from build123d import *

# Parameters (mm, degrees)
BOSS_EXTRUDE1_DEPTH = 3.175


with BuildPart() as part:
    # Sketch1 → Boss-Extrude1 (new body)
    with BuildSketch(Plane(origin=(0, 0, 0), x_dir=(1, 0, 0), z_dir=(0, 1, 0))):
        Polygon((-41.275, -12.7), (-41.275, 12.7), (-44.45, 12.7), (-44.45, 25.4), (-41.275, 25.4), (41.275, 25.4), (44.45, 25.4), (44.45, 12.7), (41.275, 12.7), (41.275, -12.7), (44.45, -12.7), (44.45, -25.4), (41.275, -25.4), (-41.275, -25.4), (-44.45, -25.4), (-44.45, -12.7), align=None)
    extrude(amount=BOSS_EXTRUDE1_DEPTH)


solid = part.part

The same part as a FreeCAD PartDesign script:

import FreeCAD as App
import Part
import Sketcher
Q = App.Units.Quantity


def add_polygon(sketch, points):
    """Adds a closed chain of lines whose ends are joined by coincident constraints."""
    first, n = sketch.GeometryCount, len(points)
    for a, b in zip(points, points[1:] + points[:1]):
        sketch.addGeometry(Part.LineSegment(App.Vector(*a, 0), App.Vector(*b, 0)), False)
    for i in range(n):
        sketch.addConstraint(Sketcher.Constraint("Coincident", first + i, 2, first + (i + 1) % n, 1))

doc = App.newDocument("Part")
body = doc.addObject("PartDesign::Body", "Body")

# Sketch on XZ plane
sketch1 = body.newObject("Sketcher::SketchObject", "Sketch")
sketch1.AttachmentSupport = (doc.getObject("XZ_Plane"), [""])
sketch1.MapMode = "FlatFace"
add_polygon(sketch1, [(-41.3, -12.7), (-41.3, 12.7), (-44.5, 12.7), (-44.5, 25.4), (44.5, 25.4), (44.5, 12.7), (41.3, 12.7), (41.3, -12.7), (44.5, -12.7), (44.5, -25.4), (-44.5, -25.4), (-44.5, -12.7)])  # lines 0-11
sketch1.addConstraint([
    Sketcher.Constraint("Vertical", 0),
    Sketcher.Constraint("Horizontal", 1),
    Sketcher.Constraint("Vertical", 2),
    Sketcher.Constraint("Horizontal", 3),
    Sketcher.Constraint("Vertical", 4),
    Sketcher.Constraint("Horizontal", 5),
    Sketcher.Constraint("Vertical", 6),
    Sketcher.Constraint("Horizontal", 7),
    Sketcher.Constraint("Vertical", 8),
    Sketcher.Constraint("Horizontal", 9),
    Sketcher.Constraint("Vertical", 10),
    Sketcher.Constraint("Horizontal", 11),
    Sketcher.Constraint("Symmetric", 0, 2, 6, 2, -1, 1),
    Sketcher.Constraint("Symmetric", 2, 2, 8, 2, -1, 1),
    Sketcher.Constraint("Symmetric", 4, 2, 10, 2, -1, 1),
    Sketcher.Constraint("Symmetric", 1, 2, 4, 2, -2),
    Sketcher.Constraint("DistanceY", 0, 1, 0, 2, Q("1 in")),
    Sketcher.Constraint("DistanceX", 3, 1, 3, 2, Q("3.5 in")),
    Sketcher.Constraint("DistanceY", 2, 1, 2, 2, Q("0.5 in")),
    Sketcher.Constraint("DistanceX", 1, 2, 1, 1, Q("0.125 in")),
])
pad1 = body.newObject("PartDesign::Pad", "Pad")
pad1.Profile = sketch1
pad1.Length = Q("0.125 in")
pad1.Reversed = True

doc.recompute()
